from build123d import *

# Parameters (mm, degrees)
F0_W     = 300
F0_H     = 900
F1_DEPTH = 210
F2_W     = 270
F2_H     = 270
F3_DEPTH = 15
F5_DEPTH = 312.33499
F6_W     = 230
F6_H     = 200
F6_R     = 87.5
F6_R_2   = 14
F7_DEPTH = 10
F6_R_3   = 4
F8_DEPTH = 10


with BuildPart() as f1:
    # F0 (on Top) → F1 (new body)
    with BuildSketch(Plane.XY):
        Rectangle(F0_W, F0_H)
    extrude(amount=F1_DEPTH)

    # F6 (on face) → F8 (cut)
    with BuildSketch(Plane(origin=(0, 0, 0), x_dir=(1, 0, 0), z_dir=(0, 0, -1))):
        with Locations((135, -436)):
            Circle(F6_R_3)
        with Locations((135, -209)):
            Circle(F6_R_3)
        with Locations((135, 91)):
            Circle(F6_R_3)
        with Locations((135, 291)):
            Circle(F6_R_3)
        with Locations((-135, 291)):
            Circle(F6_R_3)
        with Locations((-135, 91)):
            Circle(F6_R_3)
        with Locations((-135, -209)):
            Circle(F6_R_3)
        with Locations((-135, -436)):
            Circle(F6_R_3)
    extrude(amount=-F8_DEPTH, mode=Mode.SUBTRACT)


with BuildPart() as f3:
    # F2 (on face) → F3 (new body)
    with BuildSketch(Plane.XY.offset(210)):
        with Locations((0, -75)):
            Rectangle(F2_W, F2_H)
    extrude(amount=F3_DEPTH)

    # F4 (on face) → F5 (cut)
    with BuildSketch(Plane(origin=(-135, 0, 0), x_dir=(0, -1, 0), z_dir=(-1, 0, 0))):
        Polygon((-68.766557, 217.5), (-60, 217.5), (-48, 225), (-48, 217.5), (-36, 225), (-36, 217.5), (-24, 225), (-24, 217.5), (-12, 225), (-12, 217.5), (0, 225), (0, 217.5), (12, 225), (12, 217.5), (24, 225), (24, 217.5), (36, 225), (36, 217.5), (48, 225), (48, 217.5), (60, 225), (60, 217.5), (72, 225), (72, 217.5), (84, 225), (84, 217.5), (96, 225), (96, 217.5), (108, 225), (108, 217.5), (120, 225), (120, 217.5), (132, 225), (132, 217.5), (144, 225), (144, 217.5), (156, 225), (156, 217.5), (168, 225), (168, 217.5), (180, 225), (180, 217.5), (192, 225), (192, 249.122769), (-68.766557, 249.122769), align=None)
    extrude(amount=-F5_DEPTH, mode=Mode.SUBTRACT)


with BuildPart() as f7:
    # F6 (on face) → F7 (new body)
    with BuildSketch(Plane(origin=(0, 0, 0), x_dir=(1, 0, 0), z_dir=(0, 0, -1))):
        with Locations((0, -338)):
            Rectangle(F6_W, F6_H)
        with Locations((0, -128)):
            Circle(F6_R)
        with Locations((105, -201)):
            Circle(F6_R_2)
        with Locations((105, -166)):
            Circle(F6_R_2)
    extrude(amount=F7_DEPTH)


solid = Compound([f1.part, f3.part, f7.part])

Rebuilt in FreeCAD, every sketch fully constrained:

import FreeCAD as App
import Part
import Sketcher
Q = App.Units.Quantity

doc = App.newDocument("Part")
body = doc.addObject("PartDesign::Body", "Body")

# Sketch on XY plane
sketch1 = body.newObject("Sketcher::SketchObject", "Sketch")
sketch1.AttachmentSupport = (doc.getObject("XY_Plane"), [""])
sketch1.MapMode = "FlatFace"
sketch1.addGeometry(Part.LineSegment(App.Vector(-150, 450, 0), App.Vector(-150, -450, 0)), False)
sketch1.addGeometry(Part.LineSegment(App.Vector(-150, -450, 0), App.Vector(150, -450, 0)), False)
sketch1.addGeometry(Part.LineSegment(App.Vector(150, -450, 0), App.Vector(150, 450, 0)), False)
sketch1.addGeometry(Part.LineSegment(App.Vector(150, 450, 0), App.Vector(-150, 450, 0)), False)
sketch1.addConstraint(Sketcher.Constraint("Coincident", 0, 2, 1, 1))
sketch1.addConstraint(Sketcher.Constraint("Coincident", 1, 2, 2, 1))
sketch1.addConstraint(Sketcher.Constraint("Coincident", 2, 2, 3, 1))
sketch1.addConstraint(Sketcher.Constraint("Coincident", 3, 2, 0, 1))
sketch1.addConstraint(Sketcher.Constraint("Vertical", 0))
sketch1.addConstraint(Sketcher.Constraint("Horizontal", 1))
sketch1.addConstraint(Sketcher.Constraint("Vertical", 2))
sketch1.addConstraint(Sketcher.Constraint("Horizontal", 3))
sketch1.addConstraint(Sketcher.Constraint("Symmetric", 0, 2, 2, 2, -1, 1))
sketch1.addConstraint(Sketcher.Constraint("DistanceX", 1, 1, 1, 2, Q("300 mm")))
sketch1.addConstraint(Sketcher.Constraint("DistanceY", 0, 2, 0, 1, Q("900 mm")))
pad1 = body.newObject("PartDesign::Pad", "Pad")
pad1.Profile = sketch1
pad1.Length = 210

# Sketch on XY plane
sketch2 = body.newObject("Sketcher::SketchObject", "Sketch001")
sketch2.AttachmentSupport = (doc.getObject("XY_Plane"), [""])
sketch2.MapMode = "FlatFace"
sketch2.addGeometry(Part.Circle(App.Vector(135, 436, 0), App.Vector(0, 0, 1), 4), False)
sketch2.addGeometry(Part.Circle(App.Vector(135, 209, 0), App.Vector(0, 0, 1), 4), False)
sketch2.addGeometry(Part.Circle(App.Vector(135, -91, 0), App.Vector(0, 0, 1), 4), False)
sketch2.addGeometry(Part.Circle(App.Vector(135, -291, 0), App.Vector(0, 0, 1), 4), False)
sketch2.addGeometry(Part.Circle(App.Vector(-135, -291, 0), App.Vector(0, 0, 1), 4), False)
sketch2.addGeometry(Part.Circle(App.Vector(-135, -91, 0), App.Vector(0, 0, 1), 4), False)
sketch2.addGeometry(Part.Circle(App.Vector(-135, 209, 0), App.Vector(0, 0, 1), 4), False)
sketch2.addGeometry(Part.Circle(App.Vector(-135, 436, 0), App.Vector(0, 0, 1), 4), False)
sketch2.addConstraint(Sketcher.Constraint("Equal", 0, 1))
sketch2.addConstraint(Sketcher.Constraint("Equal", 1, 2))
sketch2.addConstraint(Sketcher.Constraint("Equal", 2, 3))
sketch2.addConstraint(Sketcher.Constraint("Equal", 3, 4))
sketch2.addConstraint(Sketcher.Constraint("Equal", 4, 5))
sketch2.addConstraint(Sketcher.Constraint("Equal", 5, 6))
sketch2.addConstraint(Sketcher.Constraint("Equal", 6, 7))
sketch2.addConstraint(Sketcher.Constraint("Symmetric", 3, 3, 4, 3, -2))
sketch2.addConstraint(Sketcher.Constraint("Symmetric", 2, 3, 5, 3, -2))
sketch2.addConstraint(Sketcher.Constraint("Symmetric", 1, 3, 6, 3, -2))
sketch2.addConstraint(Sketcher.Constraint("Symmetric", 0, 3, 7, 3, -2))
sketch2.addConstraint(Sketcher.Constraint("Vertical", 0, 3, 1, 3))
sketch2.addConstraint(Sketcher.Constraint("Vertical", 1, 3, 2, 3))
sketch2.addConstraint(Sketcher.Constraint("Vertical", 2, 3, 3, 3))
sketch2.addConstraint(Sketcher.Constraint("Diameter", 0, Q("8 mm")))
sketch2.addConstraint(Sketcher.Constraint("DistanceX", -1, 1, 0, 3, Q("135 mm")))
sketch2.addConstraint(Sketcher.Constraint("DistanceY", -1, 1, 0, 3, Q("436 mm")))
sketch2.addConstraint(Sketcher.Constraint("DistanceY", -1, 1, 1, 3, Q("209 mm")))
sketch2.addConstraint(Sketcher.Constraint("DistanceY", 2, 3, -1, 1, Q("91 mm")))
sketch2.addConstraint(Sketcher.Constraint("DistanceY", 3, 3, -1, 1, Q("291 mm")))
pocket1 = body.newObject("PartDesign::Pocket", "Pocket")
pocket1.Profile = sketch2
pocket1.Length = 10
pocket1.Reversed = True
body2 = doc.addObject("PartDesign::Body", "Body001")

# Sketch on XY plane
sketch3 = body2.newObject("Sketcher::SketchObject", "Sketch002")
sketch3.AttachmentSupport = (doc.getObject("XY_Plane001"), [""])
sketch3.MapMode = "FlatFace"
sketch3.AttachmentOffset = App.Placement(App.Vector(0, 0, 210), App.Rotation())
sketch3.addGeometry(Part.LineSegment(App.Vector(-135, 60, 0), App.Vector(-135, -210, 0)), False)
sketch3.addGeometry(Part.LineSegment(App.Vector(-135, -210, 0), App.Vector(135, -210, 0)), False)
sketch3.addGeometry(Part.LineSegment(App.Vector(135, -210, 0), App.Vector(135, 60, 0)), False)
sketch3.addGeometry(Part.LineSegment(App.Vector(135, 60, 0), App.Vector(-135, 60, 0)), False)
sketch3.addConstraint(Sketcher.Constraint("Coincident", 0, 2, 1, 1))
sketch3.addConstraint(Sketcher.Constraint("Coincident", 1, 2, 2, 1))
sketch3.addConstraint(Sketcher.Constraint("Coincident", 2, 2, 3, 1))
sketch3.addConstraint(Sketcher.Constraint("Coincident", 3, 2, 0, 1))
sketch3.addConstraint(Sketcher.Constraint("Vertical", 0))
sketch3.addConstraint(Sketcher.Constraint("Horizontal", 1))
sketch3.addConstraint(Sketcher.Constraint("Vertical", 2))
sketch3.addConstraint(Sketcher.Constraint("Horizontal", 3))
sketch3.addConstraint(Sketcher.Constraint("Equal", 3, 0))
sketch3.addConstraint(Sketcher.Constraint("DistanceX", 1, 1, 1, 2, Q("270 mm")))
sketch3.addConstraint(Sketcher.Constraint("DistanceX", 0, 2, -1, 1, Q("135 mm")))
sketch3.addConstraint(Sketcher.Constraint("DistanceY", 0, 2, -1, 1, Q("210 mm")))
pad2 = body2.newObject("PartDesign::Pad", "Pad001")
pad2.Profile = sketch3
pad2.Length = 15

# Sketch on YZ plane
sketch4 = body2.newObject("Sketcher::SketchObject", "Sketch003")
sketch4.AttachmentSupport = (doc.getObject("YZ_Plane001"), [""])
sketch4.MapMode = "FlatFace"
sketch4.AttachmentOffset = App.Placement(App.Vector(0, 0, -135), App.Rotation())
sketch4.addGeometry(Part.LineSegment(App.Vector(68.766557, 217.5, 0), App.Vector(60, 217.5, 0)), False)
sketch4.addGeometry(Part.LineSegment(App.Vector(60, 217.5, 0), App.Vector(48, 225, 0)), False)
sketch4.addGeometry(Part.LineSegment(App.Vector(48, 225, 0), App.Vector(48, 217.5, 0)), False)
sketch4.addGeometry(Part.LineSegment(App.Vector(48, 217.5, 0), App.Vector(36, 225, 0)), False)
sketch4.addGeometry(Part.LineSegment(App.Vector(36, 225, 0), App.Vector(36, 217.5, 0)), False)
sketch4.addGeometry(Part.LineSegment(App.Vector(36, 217.5, 0), App.Vector(24, 225, 0)), False)
sketch4.addGeometry(Part.LineSegment(App.Vector(24, 225, 0), App.Vector(24, 217.5, 0)), False)
sketch4.addGeometry(Part.LineSegment(App.Vector(24, 217.5, 0), App.Vector(12, 225, 0)), False)
sketch4.addGeometry(Part.LineSegment(App.Vector(12, 225, 0), App.Vector(12, 217.5, 0)), False)
sketch4.addGeometry(Part.LineSegment(App.Vector(12, 217.5, 0), App.Vector(0, 225, 0)), False)
sketch4.addGeometry(Part.LineSegment(App.Vector(0, 225, 0), App.Vector(0, 217.5, 0)), False)
sketch4.addGeometry(Part.LineSegment(App.Vector(0, 217.5, 0), App.Vector(-12, 225, 0)), False)
sketch4.addGeometry(Part.LineSegment(App.Vector(-12, 225, 0), App.Vector(-12, 217.5, 0)), False)
sketch4.addGeometry(Part.LineSegment(App.Vector(-12, 217.5, 0), App.Vector(-24, 225, 0)), False)
sketch4.addGeometry(Part.LineSegment(App.Vector(-24, 225, 0), App.Vector(-24, 217.5, 0)), False)
sketch4.addGeometry(Part.LineSegment(App.Vector(-24, 217.5, 0), App.Vector(-36, 225, 0)), False)
sketch4.addGeometry(Part.LineSegment(App.Vector(-36, 225, 0), App.Vector(-36, 217.5, 0)), False)
sketch4.addGeometry(Part.LineSegment(App.Vector(-36, 217.5, 0), App.Vector(-48, 225, 0)), False)
sketch4.addGeometry(Part.LineSegment(App.Vector(-48, 225, 0), App.Vector(-48, 217.5, 0)), False)
sketch4.addGeometry(Part.LineSegment(App.Vector(-48, 217.5, 0), App.Vector(-60, 225, 0)), False)
sketch4.addGeometry(Part.LineSegment(App.Vector(-60, 225, 0), App.Vector(-60, 217.5, 0)), False)
sketch4.addGeometry(Part.LineSegment(App.Vector(-60, 217.5, 0), App.Vector(-72, 225, 0)), False)
sketch4.addGeometry(Part.LineSegment(App.Vector(-72, 225, 0), App.Vector(-72, 217.5, 0)), False)
sketch4.addGeometry(Part.LineSegment(App.Vector(-72, 217.5, 0), App.Vector(-84, 225, 0)), False)
sketch4.addGeometry(Part.LineSegment(App.Vector(-84, 225, 0), App.Vector(-84, 217.5, 0)), False)
sketch4.addGeometry(Part.LineSegment(App.Vector(-84, 217.5, 0), App.Vector(-96, 225, 0)), False)
sketch4.addGeometry(Part.LineSegment(App.Vector(-96, 225, 0), App.Vector(-96, 217.5, 0)), False)
sketch4.addGeometry(Part.LineSegment(App.Vector(-96, 217.5, 0), App.Vector(-108, 225, 0)), False)
sketch4.addGeometry(Part.LineSegment(App.Vector(-108, 225, 0), App.Vector(-108, 217.5, 0)), False)
sketch4.addGeometry(Part.LineSegment(App.Vector(-108, 217.5, 0), App.Vector(-120, 225, 0)), False)
sketch4.addGeometry(Part.LineSegment(App.Vector(-120, 225, 0), App.Vector(-120, 217.5, 0)), False)
sketch4.addGeometry(Part.LineSegment(App.Vector(-120, 217.5, 0), App.Vector(-132, 225, 0)), False)
sketch4.addGeometry(Part.LineSegment(App.Vector(-132, 225, 0), App.Vector(-132, 217.5, 0)), False)
sketch4.addGeometry(Part.LineSegment(App.Vector(-132, 217.5, 0), App.Vector(-144, 225, 0)), False)
sketch4.addGeometry(Part.LineSegment(App.Vector(-144, 225, 0), App.Vector(-144, 217.5, 0)), False)
sketch4.addGeometry(Part.LineSegment(App.Vector(-144, 217.5, 0), App.Vector(-156, 225, 0)), False)
sketch4.addGeometry(Part.LineSegment(App.Vector(-156, 225, 0), App.Vector(-156, 217.5, 0)), False)
sketch4.addGeometry(Part.LineSegment(App.Vector(-156, 217.5, 0), App.Vector(-168, 225, 0)), False)
sketch4.addGeometry(Part.LineSegment(App.Vector(-168, 225, 0), App.Vector(-168, 217.5, 0)), False)
sketch4.addGeometry(Part.LineSegment(App.Vector(-168, 217.5, 0), App.Vector(-180, 225, 0)), False)
sketch4.addGeometry(Part.LineSegment(App.Vector(-180, 225, 0), App.Vector(-180, 217.5, 0)), False)
sketch4.addGeometry(Part.LineSegment(App.Vector(-180, 217.5, 0), App.Vector(-192, 225, 0)), False)
sketch4.addGeometry(Part.LineSegment(App.Vector(-192, 225, 0), App.Vector(-192, 249.122769, 0)), False)
sketch4.addGeometry(Part.LineSegment(App.Vector(-192, 249.122769, 0), App.Vector(68.766557, 249.122769, 0)), False)
sketch4.addGeometry(Part.LineSegment(App.Vector(68.766557, 249.122769, 0), App.Vector(68.766557, 217.5, 0)), False)
sketch4.addConstraint(Sketcher.Constraint("Coincident", 0, 2, 1, 1))
sketch4.addConstraint(Sketcher.Constraint("Coincident", 1, 2, 2, 1))
sketch4.addConstraint(Sketcher.Constraint("Coincident", 2, 2, 3, 1))
sketch4.addConstraint(Sketcher.Constraint("Coincident", 3, 2, 4, 1))
sketch4.addConstraint(Sketcher.Constraint("Coincident", 4, 2, 5, 1))
sketch4.addConstraint(Sketcher.Constraint("Coincident", 5, 2, 6, 1))
sketch4.addConstraint(Sketcher.Constraint("Coincident", 6, 2, 7, 1))
sketch4.addConstraint(Sketcher.Constraint("Coincident", 7, 2, 8, 1))
sketch4.addConstraint(Sketcher.Constraint("Coincident", 8, 2, 9, 1))
sketch4.addConstraint(Sketcher.Constraint("Coincident", 9, 2, 10, 1))
sketch4.addConstraint(Sketcher.Constraint("Coincident", 10, 2, 11, 1))
sketch4.addConstraint(Sketcher.Constraint("Coincident", 11, 2, 12, 1))
sketch4.addConstraint(Sketcher.Constraint("Coincident", 12, 2, 13, 1))
sketch4.addConstraint(Sketcher.Constraint("Coincident", 13, 2, 14, 1))
sketch4.addConstraint(Sketcher.Constraint("Coincident", 14, 2, 15, 1))
sketch4.addConstraint(Sketcher.Constraint("Coincident", 15, 2, 16, 1))
sketch4.addConstraint(Sketcher.Constraint("Coincident", 16, 2, 17, 1))
sketch4.addConstraint(Sketcher.Constraint("Coincident", 17, 2, 18, 1))
sketch4.addConstraint(Sketcher.Constraint("Coincident", 18, 2, 19, 1))
sketch4.addConstraint(Sketcher.Constraint("Coincident", 19, 2, 20, 1))
sketch4.addConstraint(Sketcher.Constraint("Coincident", 20, 2, 21, 1))
sketch4.addConstraint(Sketcher.Constraint("Coincident", 21, 2, 22, 1))
sketch4.addConstraint(Sketcher.Constraint("Coincident", 22, 2, 23, 1))
sketch4.addConstraint(Sketcher.Constraint("Coincident", 23, 2, 24, 1))
sketch4.addConstraint(Sketcher.Constraint("Coincident", 24, 2, 25, 1))
sketch4.addConstraint(Sketcher.Constraint("Coincident", 25, 2, 26, 1))
sketch4.addConstraint(Sketcher.Constraint("Coincident", 26, 2, 27, 1))
sketch4.addConstraint(Sketcher.Constraint("Coincident", 27, 2, 28, 1))
sketch4.addConstraint(Sketcher.Constraint("Coincident", 28, 2, 29, 1))
sketch4.addConstraint(Sketcher.Constraint("Coincident", 29, 2, 30, 1))
sketch4.addConstraint(Sketcher.Constraint("Coincident", 30, 2, 31, 1))
sketch4.addConstraint(Sketcher.Constraint("Coincident", 31, 2, 32, 1))
sketch4.addConstraint(Sketcher.Constraint("Coincident", 32, 2, 33, 1))
sketch4.addConstraint(Sketcher.Constraint("Coincident", 33, 2, 34, 1))
sketch4.addConstraint(Sketcher.Constraint("Coincident", 34, 2, 35, 1))
sketch4.addConstraint(Sketcher.Constraint("Coincident", 35, 2, 36, 1))
sketch4.addConstraint(Sketcher.Constraint("Coincident", 36, 2, 37, 1))
sketch4.addConstraint(Sketcher.Constraint("Coincident", 37, 2, 38, 1))
sketch4.addConstraint(Sketcher.Constraint("Coincident", 38, 2, 39, 1))
sketch4.addConstraint(Sketcher.Constraint("Coincident", 39, 2, 40, 1))
sketch4.addConstraint(Sketcher.Constraint("Coincident", 40, 2, 41, 1))
sketch4.addConstraint(Sketcher.Constraint("Coincident", 41, 2, 42, 1))
sketch4.addConstraint(Sketcher.Constraint("Coincident", 42, 2, 43, 1))
sketch4.addConstraint(Sketcher.Constraint("Coincident", 43, 2, 44, 1))
sketch4.addConstraint(Sketcher.Constraint("Coincident", 44, 2, 0, 1))
sketch4.addConstraint(Sketcher.Constraint("Horizontal", 0))
sketch4.addConstraint(Sketcher.Constraint("Vertical", 2))
sketch4.addConstraint(Sketcher.Constraint("Vertical", 4))
sketch4.addConstraint(Sketcher.Constraint("Vertical", 6))
sketch4.addConstraint(Sketcher.Constraint("Vertical", 8))
sketch4.addConstraint(Sketcher.Constraint("Vertical", 10))
sketch4.addConstraint(Sketcher.Constraint("Vertical", 12))
sketch4.addConstraint(Sketcher.Constraint("Vertical", 14))
sketch4.addConstraint(Sketcher.Constraint("Vertical", 16))
sketch4.addConstraint(Sketcher.Constraint("Vertical", 18))
sketch4.addConstraint(Sketcher.Constraint("Vertical", 20))
sketch4.addConstraint(Sketcher.Constraint("Vertical", 22))
sketch4.addConstraint(Sketcher.Constraint("Vertical", 24))
sketch4.addConstraint(Sketcher.Constraint("Vertical", 26))
sketch4.addConstraint(Sketcher.Constraint("Vertical", 28))
sketch4.addConstraint(Sketcher.Constraint("Vertical", 30))
sketch4.addConstraint(Sketcher.Constraint("Vertical", 32))
sketch4.addConstraint(Sketcher.Constraint("Vertical", 34))
sketch4.addConstraint(Sketcher.Constraint("Vertical", 36))
sketch4.addConstraint(Sketcher.Constraint("Vertical", 38))
sketch4.addConstraint(Sketcher.Constraint("Vertical", 40))
sketch4.addConstraint(Sketcher.Constraint("Vertical", 42))
sketch4.addConstraint(Sketcher.Constraint("Horizontal", 43))
sketch4.addConstraint(Sketcher.Constraint("Vertical", 44))
sketch4.addConstraint(Sketcher.Constraint("Symmetric", 7, 2, 11, 2, -2))
sketch4.addConstraint(Sketcher.Constraint("Symmetric", 5, 2, 13, 2, -2))
sketch4.addConstraint(Sketcher.Constraint("Symmetric", 3, 2, 15, 2, -2))
sketch4.addConstraint(Sketcher.Constraint("Symmetric", 1, 2, 17, 2, -2))
sketch4.addConstraint(Sketcher.Constraint("Symmetric", 0, 2, 20, 2, -2))
sketch4.addConstraint(Sketcher.Constraint("PointOnObject", 9, 2, -2))
sketch4.addConstraint(Sketcher.Constraint("Parallel", 1, 3))
sketch4.addConstraint(Sketcher.Constraint("Parallel", 3, 5))
sketch4.addConstraint(Sketcher.Constraint("Parallel", 5, 7))
sketch4.addConstraint(Sketcher.Constraint("Parallel", 7, 9))
sketch4.addConstraint(Sketcher.Constraint("Parallel", 9, 11))
sketch4.addConstraint(Sketcher.Constraint("Parallel", 11, 13))
sketch4.addConstraint(Sketcher.Constraint("Parallel", 13, 15))
sketch4.addConstraint(Sketcher.Constraint("Parallel", 15, 17))
sketch4.addConstraint(Sketcher.Constraint("Parallel", 17, 19))
sketch4.addConstraint(Sketcher.Constraint("Parallel", 19, 21))
sketch4.addConstraint(Sketcher.Constraint("Parallel", 21, 23))
sketch4.addConstraint(Sketcher.Constraint("Parallel", 23, 25))
sketch4.addConstraint(Sketcher.Constraint("Parallel", 25, 27))
sketch4.addConstraint(Sketcher.Constraint("Parallel", 27, 29))
sketch4.addConstraint(Sketcher.Constraint("Parallel", 29, 31))
sketch4.addConstraint(Sketcher.Constraint("Parallel", 31, 33))
sketch4.addConstraint(Sketcher.Constraint("Parallel", 33, 35))
sketch4.addConstraint(Sketcher.Constraint("Parallel", 35, 37))
sketch4.addConstraint(Sketcher.Constraint("Parallel", 37, 39))
sketch4.addConstraint(Sketcher.Constraint("Parallel", 39, 41))
sketch4.addConstraint(Sketcher.Constraint("Horizontal", 0, 2, 2, 2))
sketch4.addConstraint(Sketcher.Constraint("Horizontal", 1, 2, 3, 2))
sketch4.addConstraint(Sketcher.Constraint("Horizontal", 2, 2, 4, 2))
sketch4.addConstraint(Sketcher.Constraint("Horizontal", 3, 2, 5, 2))
sketch4.addConstraint(Sketcher.Constraint("Horizontal", 4, 2, 6, 2))
sketch4.addConstraint(Sketcher.Constraint("Horizontal", 5, 2, 7, 2))
sketch4.addConstraint(Sketcher.Constraint("Horizontal", 6, 2, 8, 2))
sketch4.addConstraint(Sketcher.Constraint("Horizontal", 7, 2, 9, 2))
sketch4.addConstraint(Sketcher.Constraint("Horizontal", 16, 2, 18, 2))
sketch4.addConstraint(Sketcher.Constraint("Horizontal", 19, 2, 21, 2))
sketch4.addConstraint(Sketcher.Constraint("Horizontal", 20, 2, 22, 2))
sketch4.addConstraint(Sketcher.Constraint("Horizontal", 21, 2, 23, 2))
sketch4.addConstraint(Sketcher.Constraint("Horizontal", 22, 2, 24, 2))
sketch4.addConstraint(Sketcher.Constraint("Horizontal", 23, 2, 25, 2))
sketch4.addConstraint(Sketcher.Constraint("Horizontal", 24, 2, 26, 2))
sketch4.addConstraint(Sketcher.Constraint("Horizontal", 25, 2, 27, 2))
sketch4.addConstraint(Sketcher.Constraint("Horizontal", 26, 2, 28, 2))
sketch4.addConstraint(Sketcher.Constraint("Horizontal", 27, 2, 29, 2))
sketch4.addConstraint(Sketcher.Constraint("Horizontal", 28, 2, 30, 2))
sketch4.addConstraint(Sketcher.Constraint("Horizontal", 29, 2, 31, 2))
sketch4.addConstraint(Sketcher.Constraint("Horizontal", 30, 2, 32, 2))
sketch4.addConstraint(Sketcher.Constraint("Horizontal", 31, 2, 33, 2))
sketch4.addConstraint(Sketcher.Constraint("Horizontal", 32, 2, 34, 2))
sketch4.addConstraint(Sketcher.Constraint("Horizontal", 33, 2, 35, 2))
sketch4.addConstraint(Sketcher.Constraint("Horizontal", 34, 2, 36, 2))
sketch4.addConstraint(Sketcher.Constraint("Horizontal", 35, 2, 37, 2))
sketch4.addConstraint(Sketcher.Constraint("Horizontal", 36, 2, 38, 2))
sketch4.addConstraint(Sketcher.Constraint("Horizontal", 37, 2, 39, 2))
sketch4.addConstraint(Sketcher.Constraint("Horizontal", 38, 2, 40, 2))
sketch4.addConstraint(Sketcher.Constraint("Horizontal", 39, 2, 41, 2))
sketch4.addConstraint(Sketcher.Constraint("DistanceY", 2, 2, 2, 1, Q("7.5 mm")))
sketch4.addConstraint(Sketcher.Constraint("DistanceX", -1, 1, 0, 2, Q("60 mm")))
sketch4.addConstraint(Sketcher.Constraint("DistanceY", -1, 1, 1, 2, Q("225 mm")))
sketch4.addConstraint(Sketcher.Constraint("DistanceY", 42, 1, 42, 2, Q("24.122769 mm")))
sketch4.addConstraint(Sketcher.Constraint("DistanceX", 0, 2, 0, 1, Q("8.766557 mm")))
pocket2 = body2.newObject("PartDesign::Pocket", "Pocket001")
pocket2.Profile = sketch4
pocket2.Length = 312.33499
pocket2.Reversed = True
body3 = doc.addObject("PartDesign::Body", "Body002")
body3.AllowCompound = True

# Sketch on XY plane
sketch5 = body3.newObject("Sketcher::SketchObject", "Sketch004")
sketch5.AttachmentSupport = (doc.getObject("XY_Plane002"), [""])
sketch5.MapMode = "FlatFace"
sketch5.addGeometry(Part.LineSegment(App.Vector(-115, 238, 0), App.Vector(-115, 438, 0)), False)
sketch5.addGeometry(Part.LineSegment(App.Vector(-115, 438, 0), App.Vector(115, 438, 0)), False)
sketch5.addGeometry(Part.LineSegment(App.Vector(115, 438, 0), App.Vector(115, 238, 0)), False)
sketch5.addGeometry(Part.LineSegment(App.Vector(115, 238, 0), App.Vector(-115, 238, 0)), False)
sketch5.addGeometry(Part.Circle(App.Vector(0, 128, 0), App.Vector(0, 0, 1), 87.5), False)
sketch5.addGeometry(Part.Circle(App.Vector(105, 201, 0), App.Vector(0, 0, 1), 14), False)
sketch5.addGeometry(Part.Circle(App.Vector(105, 166, 0), App.Vector(0, 0, 1), 14), False)
sketch5.addConstraint(Sketcher.Constraint("Coincident", 0, 2, 1, 1))
sketch5.addConstraint(Sketcher.Constraint("Coincident", 1, 2, 2, 1))
sketch5.addConstraint(Sketcher.Constraint("Coincident", 2, 2, 3, 1))
sketch5.addConstraint(Sketcher.Constraint("Coincident", 3, 2, 0, 1))
sketch5.addConstraint(Sketcher.Constraint("Vertical", 0))
sketch5.addConstraint(Sketcher.Constraint("Horizontal", 1))
sketch5.addConstraint(Sketcher.Constraint("Vertical", 2))
sketch5.addConstraint(Sketcher.Constraint("Horizontal", 3))
sketch5.addConstraint(Sketcher.Constraint("Equal", 5, 6))
sketch5.addConstraint(Sketcher.Constraint("PointOnObject", 4, 3, -2))
sketch5.addConstraint(Sketcher.Constraint("Vertical", 5, 3, 6, 3))
sketch5.addConstraint(Sketcher.Constraint("Diameter", 4, Q("175 mm")))
sketch5.addConstraint(Sketcher.Constraint("Diameter", 5, Q("28 mm")))
sketch5.addConstraint(Sketcher.Constraint("DistanceX", 1, 1, 1, 2, Q("230 mm")))
sketch5.addConstraint(Sketcher.Constraint("DistanceY", 0, 1, 0, 2, Q("200 mm")))
sketch5.addConstraint(Sketcher.Constraint("DistanceY", -1, 1, 4, 3, Q("128 mm")))
sketch5.addConstraint(Sketcher.Constraint("DistanceX", -1, 1, 5, 3, Q("105 mm")))
sketch5.addConstraint(Sketcher.Constraint("DistanceY", -1, 1, 5, 3, Q("201 mm")))
sketch5.addConstraint(Sketcher.Constraint("DistanceY", -1, 1, 6, 3, Q("166 mm")))
sketch5.addConstraint(Sketcher.Constraint("DistanceX", 0, 2, -1, 1, Q("115 mm")))
sketch5.addConstraint(Sketcher.Constraint("DistanceY", -1, 1, 0, 2, Q("438 mm")))
pad3 = body3.newObject("PartDesign::Pad", "Pad002")
pad3.Profile = sketch5
pad3.Length = 10
pad3.Reversed = True

doc.recompute()
